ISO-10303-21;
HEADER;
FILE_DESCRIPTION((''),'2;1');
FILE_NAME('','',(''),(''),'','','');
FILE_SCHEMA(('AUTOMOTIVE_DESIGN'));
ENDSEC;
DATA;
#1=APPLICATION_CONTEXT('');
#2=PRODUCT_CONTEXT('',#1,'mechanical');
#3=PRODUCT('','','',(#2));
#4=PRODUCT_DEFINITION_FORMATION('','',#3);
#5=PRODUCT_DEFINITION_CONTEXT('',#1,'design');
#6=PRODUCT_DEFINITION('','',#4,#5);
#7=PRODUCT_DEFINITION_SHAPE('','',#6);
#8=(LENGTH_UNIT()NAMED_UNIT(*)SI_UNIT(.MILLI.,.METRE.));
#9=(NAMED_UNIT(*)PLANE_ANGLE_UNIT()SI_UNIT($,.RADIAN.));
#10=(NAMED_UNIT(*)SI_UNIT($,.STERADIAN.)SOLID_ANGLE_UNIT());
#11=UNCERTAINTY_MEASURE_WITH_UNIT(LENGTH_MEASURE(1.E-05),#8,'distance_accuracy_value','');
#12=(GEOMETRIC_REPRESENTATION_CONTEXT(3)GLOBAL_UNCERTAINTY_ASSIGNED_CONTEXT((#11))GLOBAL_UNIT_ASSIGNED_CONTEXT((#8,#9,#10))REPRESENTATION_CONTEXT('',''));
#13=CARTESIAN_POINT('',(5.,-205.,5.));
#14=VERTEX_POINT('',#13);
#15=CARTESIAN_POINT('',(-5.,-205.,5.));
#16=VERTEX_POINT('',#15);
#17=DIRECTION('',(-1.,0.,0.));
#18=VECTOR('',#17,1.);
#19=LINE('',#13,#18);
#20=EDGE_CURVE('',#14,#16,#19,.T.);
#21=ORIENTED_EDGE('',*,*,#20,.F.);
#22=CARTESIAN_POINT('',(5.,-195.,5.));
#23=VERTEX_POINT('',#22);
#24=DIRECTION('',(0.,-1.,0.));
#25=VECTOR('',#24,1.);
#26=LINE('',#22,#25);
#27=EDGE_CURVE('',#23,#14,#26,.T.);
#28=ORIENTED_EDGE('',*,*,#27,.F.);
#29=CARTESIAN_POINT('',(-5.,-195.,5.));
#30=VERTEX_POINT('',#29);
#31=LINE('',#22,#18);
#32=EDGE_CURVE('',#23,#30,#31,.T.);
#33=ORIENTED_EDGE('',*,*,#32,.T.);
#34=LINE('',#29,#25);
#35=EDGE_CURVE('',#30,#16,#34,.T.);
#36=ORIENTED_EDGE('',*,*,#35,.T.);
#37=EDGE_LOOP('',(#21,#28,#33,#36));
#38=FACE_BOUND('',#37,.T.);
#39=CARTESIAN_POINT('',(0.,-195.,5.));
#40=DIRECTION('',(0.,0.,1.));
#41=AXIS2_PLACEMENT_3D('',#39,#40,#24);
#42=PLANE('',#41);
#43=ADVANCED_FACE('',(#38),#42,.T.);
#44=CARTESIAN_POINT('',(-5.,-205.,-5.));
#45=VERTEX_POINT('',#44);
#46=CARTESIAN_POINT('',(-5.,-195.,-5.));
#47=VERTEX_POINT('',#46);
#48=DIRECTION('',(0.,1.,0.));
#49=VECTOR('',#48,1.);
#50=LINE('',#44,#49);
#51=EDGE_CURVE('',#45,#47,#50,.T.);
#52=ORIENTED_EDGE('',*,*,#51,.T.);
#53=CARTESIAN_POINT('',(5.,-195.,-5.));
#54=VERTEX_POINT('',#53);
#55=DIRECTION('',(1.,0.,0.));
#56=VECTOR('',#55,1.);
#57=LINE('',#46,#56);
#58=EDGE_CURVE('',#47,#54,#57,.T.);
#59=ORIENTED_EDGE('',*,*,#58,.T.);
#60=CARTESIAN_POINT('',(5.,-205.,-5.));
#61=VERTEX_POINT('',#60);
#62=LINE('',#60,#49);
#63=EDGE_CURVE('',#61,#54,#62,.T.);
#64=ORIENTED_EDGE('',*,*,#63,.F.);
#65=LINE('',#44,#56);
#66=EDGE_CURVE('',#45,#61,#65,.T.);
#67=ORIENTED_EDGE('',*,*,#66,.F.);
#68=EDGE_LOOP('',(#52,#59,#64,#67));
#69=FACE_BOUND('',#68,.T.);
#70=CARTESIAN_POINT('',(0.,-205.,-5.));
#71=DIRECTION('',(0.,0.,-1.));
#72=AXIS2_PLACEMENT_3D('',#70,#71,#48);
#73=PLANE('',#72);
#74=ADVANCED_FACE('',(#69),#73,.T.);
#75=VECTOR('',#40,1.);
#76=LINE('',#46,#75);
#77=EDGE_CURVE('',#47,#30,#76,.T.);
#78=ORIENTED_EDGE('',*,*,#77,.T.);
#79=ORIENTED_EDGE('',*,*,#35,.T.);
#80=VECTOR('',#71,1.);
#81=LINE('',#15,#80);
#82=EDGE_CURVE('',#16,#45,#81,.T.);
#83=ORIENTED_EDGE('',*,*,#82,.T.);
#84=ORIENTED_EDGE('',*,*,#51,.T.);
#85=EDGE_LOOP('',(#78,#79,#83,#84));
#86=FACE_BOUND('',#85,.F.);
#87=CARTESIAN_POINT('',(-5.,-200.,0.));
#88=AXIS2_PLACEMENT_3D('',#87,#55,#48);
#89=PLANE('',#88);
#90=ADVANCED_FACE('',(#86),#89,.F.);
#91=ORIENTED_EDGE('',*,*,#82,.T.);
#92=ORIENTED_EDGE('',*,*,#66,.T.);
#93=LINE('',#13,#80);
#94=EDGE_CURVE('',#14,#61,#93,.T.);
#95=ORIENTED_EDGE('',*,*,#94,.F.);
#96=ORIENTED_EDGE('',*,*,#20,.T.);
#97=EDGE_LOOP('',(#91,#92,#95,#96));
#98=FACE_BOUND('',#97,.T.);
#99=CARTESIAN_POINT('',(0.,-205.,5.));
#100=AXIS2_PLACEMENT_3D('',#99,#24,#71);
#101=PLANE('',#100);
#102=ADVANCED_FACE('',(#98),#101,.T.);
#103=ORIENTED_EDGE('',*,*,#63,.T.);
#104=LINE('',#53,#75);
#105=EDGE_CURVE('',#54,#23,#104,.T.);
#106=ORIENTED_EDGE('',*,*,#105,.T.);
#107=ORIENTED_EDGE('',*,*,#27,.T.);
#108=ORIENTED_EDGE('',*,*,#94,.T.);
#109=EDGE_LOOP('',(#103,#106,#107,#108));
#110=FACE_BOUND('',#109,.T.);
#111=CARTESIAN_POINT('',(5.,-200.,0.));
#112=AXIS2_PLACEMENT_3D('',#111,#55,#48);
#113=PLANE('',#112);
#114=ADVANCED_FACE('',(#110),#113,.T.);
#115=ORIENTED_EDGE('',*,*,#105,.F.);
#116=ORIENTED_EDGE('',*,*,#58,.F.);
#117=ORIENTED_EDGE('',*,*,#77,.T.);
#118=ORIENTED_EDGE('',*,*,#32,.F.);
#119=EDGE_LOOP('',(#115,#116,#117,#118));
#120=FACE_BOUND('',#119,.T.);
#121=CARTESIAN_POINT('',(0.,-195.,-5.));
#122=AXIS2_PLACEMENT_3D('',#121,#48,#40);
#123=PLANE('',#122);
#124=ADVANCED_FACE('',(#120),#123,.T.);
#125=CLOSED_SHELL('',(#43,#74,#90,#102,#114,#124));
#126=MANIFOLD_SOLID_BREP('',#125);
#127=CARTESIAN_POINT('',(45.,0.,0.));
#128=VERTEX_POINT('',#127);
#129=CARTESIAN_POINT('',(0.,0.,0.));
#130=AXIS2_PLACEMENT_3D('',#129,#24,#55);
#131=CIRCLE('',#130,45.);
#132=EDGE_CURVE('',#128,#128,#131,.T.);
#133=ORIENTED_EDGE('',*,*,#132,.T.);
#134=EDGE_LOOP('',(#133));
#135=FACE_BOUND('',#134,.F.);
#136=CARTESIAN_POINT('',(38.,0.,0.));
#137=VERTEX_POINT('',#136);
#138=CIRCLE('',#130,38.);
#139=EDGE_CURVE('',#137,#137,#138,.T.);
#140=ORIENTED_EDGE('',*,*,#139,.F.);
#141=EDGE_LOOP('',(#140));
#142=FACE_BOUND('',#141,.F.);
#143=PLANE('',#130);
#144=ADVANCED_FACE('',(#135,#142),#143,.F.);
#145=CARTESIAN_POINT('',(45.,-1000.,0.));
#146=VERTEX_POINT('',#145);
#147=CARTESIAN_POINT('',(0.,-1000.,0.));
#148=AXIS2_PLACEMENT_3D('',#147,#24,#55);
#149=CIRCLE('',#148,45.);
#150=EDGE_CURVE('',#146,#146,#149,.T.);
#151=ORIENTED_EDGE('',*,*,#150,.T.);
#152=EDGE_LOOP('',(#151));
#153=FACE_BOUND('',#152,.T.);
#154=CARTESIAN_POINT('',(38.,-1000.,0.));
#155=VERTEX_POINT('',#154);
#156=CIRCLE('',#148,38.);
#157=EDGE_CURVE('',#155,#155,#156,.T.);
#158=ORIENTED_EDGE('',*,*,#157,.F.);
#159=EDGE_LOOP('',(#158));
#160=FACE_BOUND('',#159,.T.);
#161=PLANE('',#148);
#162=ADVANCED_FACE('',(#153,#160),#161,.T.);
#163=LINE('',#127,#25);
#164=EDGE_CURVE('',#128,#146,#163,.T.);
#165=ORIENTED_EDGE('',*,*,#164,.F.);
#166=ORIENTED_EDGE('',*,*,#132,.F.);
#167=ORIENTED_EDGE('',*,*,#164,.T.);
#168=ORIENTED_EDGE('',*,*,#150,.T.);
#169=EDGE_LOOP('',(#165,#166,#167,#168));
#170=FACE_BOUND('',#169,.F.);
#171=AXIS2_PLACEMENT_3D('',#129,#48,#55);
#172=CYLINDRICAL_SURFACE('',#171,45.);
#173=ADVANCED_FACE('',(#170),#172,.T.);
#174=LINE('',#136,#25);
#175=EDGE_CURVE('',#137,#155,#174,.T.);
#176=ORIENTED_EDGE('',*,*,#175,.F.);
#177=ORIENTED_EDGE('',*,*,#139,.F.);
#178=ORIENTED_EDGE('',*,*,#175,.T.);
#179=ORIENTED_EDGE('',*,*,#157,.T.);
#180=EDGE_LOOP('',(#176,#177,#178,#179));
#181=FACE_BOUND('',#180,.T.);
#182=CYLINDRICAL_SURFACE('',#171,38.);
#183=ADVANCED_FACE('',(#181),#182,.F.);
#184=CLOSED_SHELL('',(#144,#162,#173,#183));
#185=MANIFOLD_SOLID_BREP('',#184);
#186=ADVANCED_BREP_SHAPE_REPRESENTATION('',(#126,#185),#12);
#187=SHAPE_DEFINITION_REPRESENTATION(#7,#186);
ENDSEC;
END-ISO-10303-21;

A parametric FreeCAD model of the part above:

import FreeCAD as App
import Part
import Sketcher
Q = App.Units.Quantity


def add_polygon(sketch, points):
    """Adds a closed chain of lines whose ends are joined by coincident constraints."""
    first, n = sketch.GeometryCount, len(points)
    for a, b in zip(points, points[1:] + points[:1]):
        sketch.addGeometry(Part.LineSegment(App.Vector(*a, 0), App.Vector(*b, 0)), False)
    for i in range(n):
        sketch.addConstraint(Sketcher.Constraint("Coincident", first + i, 2, first + (i + 1) % n, 1))

doc = App.newDocument("Part")
params = doc.addObject("Spreadsheet::Sheet", "Params")
for row, (alias, value) in enumerate([
    ("sketch1_diameter", "90 mm"),
    ("sketch1_diameter2", "76 mm"),
    ("pad1_length", "1000 mm"),
    ("sketch2_width", "10 mm"),
    ("pad2_length", "10 mm"),
], start=1):
    params.set(f"A{row}", alias)
    params.set(f"B{row}", "=" + value)
    params.setAlias(f"B{row}", alias)

body = doc.addObject("PartDesign::Body", "Body")

sketch1 = doc.addObject("Sketcher::SketchObject", "Sketch")
body.addObject(sketch1)
sketch1.AttachmentSupport = (doc.XZ_Plane, [""])
sketch1.MapMode = "FlatFace"
sketch1.addGeometry(Part.Circle(App.Vector(0, 0, 0), App.Vector(0, 0, 1), 45), False)
sketch1.addGeometry(Part.Circle(App.Vector(0, 0, 0), App.Vector(0, 0, 1), 38), False)
sketch1.addConstraint(Sketcher.Constraint("Coincident", 0, 3, -1, 1))
sketch1.addConstraint(Sketcher.Constraint("Coincident", 1, 3, -1, 1))
sketch1.addConstraint(Sketcher.Constraint("Diameter", 0, Q("90 mm")))
sketch1.addConstraint(Sketcher.Constraint("Diameter", 1, Q("76 mm")))
sketch1.setExpression("Constraints[2]", "Params.sketch1_diameter")
sketch1.setExpression("Constraints[3]", "Params.sketch1_diameter2")
pad1 = doc.addObject("PartDesign::Pad", "Pad")
body.addObject(pad1)
pad1.Profile = sketch1
pad1.setExpression("Length", "Params.pad1_length")
body2 = doc.addObject("PartDesign::Body", "Body001")

sketch2 = doc.addObject("Sketcher::SketchObject", "Sketch001")
body2.addObject(sketch2)
sketch2.AttachmentSupport = (doc.getObject("YZ_Plane001"), [""])
sketch2.MapMode = "FlatFace"
add_polygon(sketch2, [(-205, 5), (-205, -5), (-195, -5), (-195, 5)])
sketch2.addConstraint(Sketcher.Constraint("Vertical", 0))
sketch2.addConstraint(Sketcher.Constraint("Horizontal", 1))
sketch2.addConstraint(Sketcher.Constraint("Vertical", 2))
sketch2.addConstraint(Sketcher.Constraint("Horizontal", 3))
sketch2.addConstraint(Sketcher.Constraint("Equal", 3, 0))
sketch2.addConstraint(Sketcher.Constraint("DistanceX", 1, 1, 1, 2, Q("10 mm")))
sketch2.addConstraint(Sketcher.Constraint("DistanceX", 0, 2, -1, 1, Q("205 mm")))
sketch2.addConstraint(Sketcher.Constraint("DistanceY", 0, 2, -1, 1, Q("5 mm")))
sketch2.setExpression("Constraints[9]", "Params.sketch2_width")
pad2 = doc.addObject("PartDesign::Pad", "Pad001")
body2.addObject(pad2)
pad2.Profile = sketch2
pad2.setExpression("Length", "Params.pad2_length")
pad2.Midplane = True

doc.recompute()
